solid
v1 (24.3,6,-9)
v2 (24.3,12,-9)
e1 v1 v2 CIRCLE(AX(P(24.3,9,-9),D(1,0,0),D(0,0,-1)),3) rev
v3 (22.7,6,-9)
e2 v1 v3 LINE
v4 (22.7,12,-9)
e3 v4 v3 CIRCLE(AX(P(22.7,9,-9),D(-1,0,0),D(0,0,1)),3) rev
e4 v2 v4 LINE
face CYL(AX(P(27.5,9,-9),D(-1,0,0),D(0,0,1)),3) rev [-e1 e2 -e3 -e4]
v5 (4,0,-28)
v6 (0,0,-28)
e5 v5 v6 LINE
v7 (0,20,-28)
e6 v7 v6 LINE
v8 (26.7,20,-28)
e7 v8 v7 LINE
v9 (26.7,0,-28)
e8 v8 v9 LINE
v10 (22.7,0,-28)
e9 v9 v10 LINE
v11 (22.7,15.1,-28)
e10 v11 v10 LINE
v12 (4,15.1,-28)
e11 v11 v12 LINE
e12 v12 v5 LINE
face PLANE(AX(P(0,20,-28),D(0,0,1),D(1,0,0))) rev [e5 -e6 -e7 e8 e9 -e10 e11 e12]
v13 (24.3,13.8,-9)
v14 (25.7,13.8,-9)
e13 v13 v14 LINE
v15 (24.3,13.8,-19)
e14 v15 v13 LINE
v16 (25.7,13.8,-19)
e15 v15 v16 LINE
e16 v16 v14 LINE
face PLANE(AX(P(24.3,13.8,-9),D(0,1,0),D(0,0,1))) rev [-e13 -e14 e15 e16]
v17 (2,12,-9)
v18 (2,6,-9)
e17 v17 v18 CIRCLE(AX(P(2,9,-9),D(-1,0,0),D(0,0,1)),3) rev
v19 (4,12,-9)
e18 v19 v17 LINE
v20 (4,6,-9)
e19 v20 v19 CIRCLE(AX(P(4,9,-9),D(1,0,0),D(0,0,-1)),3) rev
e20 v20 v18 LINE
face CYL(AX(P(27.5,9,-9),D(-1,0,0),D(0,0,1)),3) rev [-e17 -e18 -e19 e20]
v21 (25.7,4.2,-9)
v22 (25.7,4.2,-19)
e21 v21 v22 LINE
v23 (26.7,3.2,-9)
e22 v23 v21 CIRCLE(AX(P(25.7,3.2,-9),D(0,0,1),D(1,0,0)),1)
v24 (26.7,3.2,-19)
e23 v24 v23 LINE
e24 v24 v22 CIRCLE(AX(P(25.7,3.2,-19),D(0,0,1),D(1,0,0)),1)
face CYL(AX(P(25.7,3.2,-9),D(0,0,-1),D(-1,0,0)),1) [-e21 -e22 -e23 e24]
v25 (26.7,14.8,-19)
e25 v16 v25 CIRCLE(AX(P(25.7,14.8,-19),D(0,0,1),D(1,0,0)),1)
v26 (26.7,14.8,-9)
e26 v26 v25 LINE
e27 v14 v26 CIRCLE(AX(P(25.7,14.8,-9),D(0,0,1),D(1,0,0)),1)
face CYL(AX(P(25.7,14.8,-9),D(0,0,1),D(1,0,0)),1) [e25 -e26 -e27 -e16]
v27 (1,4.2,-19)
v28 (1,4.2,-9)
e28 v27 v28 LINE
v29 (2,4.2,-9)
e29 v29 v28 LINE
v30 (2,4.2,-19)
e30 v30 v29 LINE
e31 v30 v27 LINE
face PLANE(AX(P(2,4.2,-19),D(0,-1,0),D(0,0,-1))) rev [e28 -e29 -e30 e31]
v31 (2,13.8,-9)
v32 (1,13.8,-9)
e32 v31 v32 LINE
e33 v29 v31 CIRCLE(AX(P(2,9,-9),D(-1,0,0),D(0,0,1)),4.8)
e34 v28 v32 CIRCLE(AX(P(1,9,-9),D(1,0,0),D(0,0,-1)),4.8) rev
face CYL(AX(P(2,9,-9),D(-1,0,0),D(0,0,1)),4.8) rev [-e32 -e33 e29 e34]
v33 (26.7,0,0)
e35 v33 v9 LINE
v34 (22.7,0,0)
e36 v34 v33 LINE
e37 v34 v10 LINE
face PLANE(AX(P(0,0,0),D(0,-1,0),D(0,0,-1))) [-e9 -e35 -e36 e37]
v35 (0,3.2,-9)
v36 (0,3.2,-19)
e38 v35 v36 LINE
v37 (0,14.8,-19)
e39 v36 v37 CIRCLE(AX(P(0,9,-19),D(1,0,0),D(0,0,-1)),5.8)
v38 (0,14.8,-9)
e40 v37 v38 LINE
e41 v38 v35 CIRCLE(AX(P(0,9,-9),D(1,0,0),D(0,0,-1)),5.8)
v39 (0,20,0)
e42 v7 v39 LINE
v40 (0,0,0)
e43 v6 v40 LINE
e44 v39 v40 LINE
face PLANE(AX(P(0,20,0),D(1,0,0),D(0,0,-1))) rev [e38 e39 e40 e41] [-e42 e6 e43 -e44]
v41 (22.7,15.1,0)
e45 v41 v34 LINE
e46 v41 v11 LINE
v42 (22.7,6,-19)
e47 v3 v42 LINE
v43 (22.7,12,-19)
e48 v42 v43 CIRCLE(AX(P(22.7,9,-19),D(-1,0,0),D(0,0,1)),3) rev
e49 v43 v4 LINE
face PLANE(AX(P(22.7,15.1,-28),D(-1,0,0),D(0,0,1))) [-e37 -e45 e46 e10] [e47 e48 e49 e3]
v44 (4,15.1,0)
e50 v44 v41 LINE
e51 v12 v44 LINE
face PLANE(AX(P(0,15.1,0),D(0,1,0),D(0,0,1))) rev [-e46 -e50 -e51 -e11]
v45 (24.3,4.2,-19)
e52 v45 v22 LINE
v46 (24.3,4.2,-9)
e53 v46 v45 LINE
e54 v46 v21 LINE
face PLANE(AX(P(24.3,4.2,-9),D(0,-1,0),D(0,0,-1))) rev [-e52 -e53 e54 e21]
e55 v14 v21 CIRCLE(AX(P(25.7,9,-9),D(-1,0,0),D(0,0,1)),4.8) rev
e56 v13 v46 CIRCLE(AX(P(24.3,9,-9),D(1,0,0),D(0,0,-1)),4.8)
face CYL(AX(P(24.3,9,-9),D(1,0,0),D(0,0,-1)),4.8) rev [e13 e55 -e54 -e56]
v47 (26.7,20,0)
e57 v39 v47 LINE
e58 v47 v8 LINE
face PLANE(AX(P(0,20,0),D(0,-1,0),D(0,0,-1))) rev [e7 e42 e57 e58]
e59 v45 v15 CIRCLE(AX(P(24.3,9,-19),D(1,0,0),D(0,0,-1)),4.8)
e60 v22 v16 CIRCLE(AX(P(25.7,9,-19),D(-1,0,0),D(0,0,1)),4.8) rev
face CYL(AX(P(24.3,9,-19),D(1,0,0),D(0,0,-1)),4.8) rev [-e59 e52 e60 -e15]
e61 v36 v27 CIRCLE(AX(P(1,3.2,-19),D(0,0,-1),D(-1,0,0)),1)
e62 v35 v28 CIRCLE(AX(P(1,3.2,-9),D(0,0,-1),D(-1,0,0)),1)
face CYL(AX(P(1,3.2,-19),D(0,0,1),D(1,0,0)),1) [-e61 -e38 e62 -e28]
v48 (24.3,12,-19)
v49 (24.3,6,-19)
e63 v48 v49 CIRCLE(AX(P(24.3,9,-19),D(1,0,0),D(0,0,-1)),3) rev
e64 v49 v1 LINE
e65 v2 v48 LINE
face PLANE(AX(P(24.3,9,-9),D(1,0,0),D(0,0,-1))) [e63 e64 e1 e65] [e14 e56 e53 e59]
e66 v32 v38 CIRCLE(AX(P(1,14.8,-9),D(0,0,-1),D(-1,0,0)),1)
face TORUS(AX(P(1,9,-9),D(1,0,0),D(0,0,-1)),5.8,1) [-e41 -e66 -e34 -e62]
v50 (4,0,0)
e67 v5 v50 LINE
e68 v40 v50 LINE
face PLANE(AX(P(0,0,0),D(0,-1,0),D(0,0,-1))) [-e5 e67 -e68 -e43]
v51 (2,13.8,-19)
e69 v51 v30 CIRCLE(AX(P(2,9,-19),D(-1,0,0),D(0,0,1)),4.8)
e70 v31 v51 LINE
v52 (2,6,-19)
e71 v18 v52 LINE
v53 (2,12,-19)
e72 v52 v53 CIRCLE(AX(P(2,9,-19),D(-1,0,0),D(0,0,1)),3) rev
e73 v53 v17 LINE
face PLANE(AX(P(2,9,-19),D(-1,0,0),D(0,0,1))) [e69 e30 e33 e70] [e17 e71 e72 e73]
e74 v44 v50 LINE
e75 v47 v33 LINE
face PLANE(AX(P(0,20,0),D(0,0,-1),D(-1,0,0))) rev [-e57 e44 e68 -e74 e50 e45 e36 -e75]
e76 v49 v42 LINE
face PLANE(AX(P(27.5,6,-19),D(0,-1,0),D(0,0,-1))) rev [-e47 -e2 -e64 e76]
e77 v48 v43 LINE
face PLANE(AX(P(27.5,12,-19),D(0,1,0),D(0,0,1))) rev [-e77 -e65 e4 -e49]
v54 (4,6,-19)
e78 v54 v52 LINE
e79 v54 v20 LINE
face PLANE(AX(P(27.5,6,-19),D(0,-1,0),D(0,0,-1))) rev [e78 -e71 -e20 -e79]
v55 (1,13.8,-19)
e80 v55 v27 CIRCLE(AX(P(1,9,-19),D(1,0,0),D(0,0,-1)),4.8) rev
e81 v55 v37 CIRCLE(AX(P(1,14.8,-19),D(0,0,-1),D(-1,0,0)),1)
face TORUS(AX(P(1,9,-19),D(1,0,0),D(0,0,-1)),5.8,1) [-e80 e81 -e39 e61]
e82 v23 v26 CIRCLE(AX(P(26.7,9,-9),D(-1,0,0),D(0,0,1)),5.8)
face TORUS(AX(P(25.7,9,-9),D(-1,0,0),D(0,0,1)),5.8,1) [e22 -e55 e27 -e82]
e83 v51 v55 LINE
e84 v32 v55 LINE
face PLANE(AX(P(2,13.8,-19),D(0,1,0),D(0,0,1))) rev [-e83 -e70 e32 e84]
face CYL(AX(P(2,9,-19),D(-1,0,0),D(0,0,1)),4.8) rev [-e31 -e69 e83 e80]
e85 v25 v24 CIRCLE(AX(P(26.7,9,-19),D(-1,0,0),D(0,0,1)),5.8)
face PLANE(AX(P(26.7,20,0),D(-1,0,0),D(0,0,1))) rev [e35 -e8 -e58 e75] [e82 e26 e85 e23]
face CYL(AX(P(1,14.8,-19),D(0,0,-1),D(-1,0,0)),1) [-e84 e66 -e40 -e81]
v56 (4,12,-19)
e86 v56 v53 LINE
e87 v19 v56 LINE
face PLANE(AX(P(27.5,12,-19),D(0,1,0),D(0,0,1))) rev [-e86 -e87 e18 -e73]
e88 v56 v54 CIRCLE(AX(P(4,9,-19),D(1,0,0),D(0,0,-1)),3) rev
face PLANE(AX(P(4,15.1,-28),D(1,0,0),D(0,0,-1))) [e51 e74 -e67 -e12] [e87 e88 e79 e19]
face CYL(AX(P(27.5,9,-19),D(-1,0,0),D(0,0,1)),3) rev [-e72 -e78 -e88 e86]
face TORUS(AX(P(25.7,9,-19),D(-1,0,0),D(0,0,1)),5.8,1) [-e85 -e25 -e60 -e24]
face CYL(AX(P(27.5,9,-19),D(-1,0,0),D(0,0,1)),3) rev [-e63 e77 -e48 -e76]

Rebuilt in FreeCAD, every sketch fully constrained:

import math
import FreeCAD as App
import Part
import Sketcher
from FreeCAD import Vector


def edges_at(feature, points):
    """Names of the edges that pass closest to the given points."""
    edges = feature.Shape.Edges
    near = lambda p: min(range(len(edges)), key=lambda i: edges[i].distToShape(Part.Vertex(*p))[0])
    return sorted({f"Edge{near(p) + 1}" for p in points})

doc = App.newDocument("Part")
body = doc.addObject("PartDesign::Body", "Body")

# Sketch on XZ plane
sketch1 = body.newObject("Sketcher::SketchObject", "Sketch")
sketch1.AttachmentSupport = (doc.getObject("XZ_Plane"), [""])
sketch1.MapMode = "FlatFace"
sketch1.addGeometry(Part.LineSegment(Vector(0, -28, 0), Vector(0, 0, 0)), False)
sketch1.addGeometry(Part.LineSegment(Vector(0, 0, 0), Vector(26.7, 0, 0)), False)
sketch1.addGeometry(Part.LineSegment(Vector(26.7, 0, 0), Vector(26.7, -28, 0)), False)
sketch1.addGeometry(Part.LineSegment(Vector(26.7, -28, 0), Vector(0, -28, 0)), False)
sketch1.addConstraint(Sketcher.Constraint("Coincident", 0, 2, 1, 1))
sketch1.addConstraint(Sketcher.Constraint("Coincident", 1, 2, 2, 1))
sketch1.addConstraint(Sketcher.Constraint("Coincident", 2, 2, 3, 1))
sketch1.addConstraint(Sketcher.Constraint("Coincident", 3, 2, 0, 1))
sketch1.addConstraint(Sketcher.Constraint("Vertical", 0))
sketch1.addConstraint(Sketcher.Constraint("Horizontal", 1))
sketch1.addConstraint(Sketcher.Constraint("Vertical", 2))
sketch1.addConstraint(Sketcher.Constraint("Horizontal", 3))
sketch1.addConstraint(Sketcher.Constraint("Coincident", 0, 2, -1, 1))
sketch1.addConstraint(Sketcher.Constraint("DistanceY", 0, 1, 0, 2, 28.0))
sketch1.addConstraint(Sketcher.Constraint("DistanceX", 1, 1, 1, 2, 26.7))
pad1 = body.newObject("PartDesign::Pad", "Pad")
pad1.Profile = sketch1
pad1.Length = 20
pad1.Reversed = True

# Sketch on YZ plane
sketch2 = body.newObject("Sketcher::SketchObject", "Sketch001")
sketch2.AttachmentSupport = (doc.getObject("YZ_Plane"), [""])
sketch2.MapMode = "FlatFace"
sketch2.addGeometry(Part.LineSegment(Vector(12, -9, 0), Vector(12, -19, 0)), False)
sketch2.addGeometry(Part.ArcOfCircle(Part.Circle(Vector(9, -19, 0), Vector(0, 0, 1), 3), math.radians(180), math.radians(360)), False)
sketch2.addGeometry(Part.LineSegment(Vector(6, -19, 0), Vector(6, -9, 0)), False)
sketch2.addGeometry(Part.ArcOfCircle(Part.Circle(Vector(9, -9, 0), Vector(0, 0, 1), 3), math.radians(0), math.radians(180)), False)
sketch2.addConstraint(Sketcher.Constraint("Tangent", 0, 2, 1, 2))
sketch2.addConstraint(Sketcher.Constraint("Tangent", 1, 1, 2, 1))
sketch2.addConstraint(Sketcher.Constraint("Tangent", 2, 2, 3, 2))
sketch2.addConstraint(Sketcher.Constraint("Tangent", 3, 1, 0, 1))
sketch2.addConstraint(Sketcher.Constraint("Vertical", 0))
sketch2.addConstraint(Sketcher.Constraint("Vertical", 2))
sketch2.addConstraint(Sketcher.Constraint("Radius", 1, 3.0))
sketch2.addConstraint(Sketcher.Constraint("DistanceY", 0, 2, 0, 1, 10.0))
sketch2.addConstraint(Sketcher.Constraint("DistanceX", -1, 1, 1, 3, 9.0))
sketch2.addConstraint(Sketcher.Constraint("DistanceY", 1, 3, -1, 1, 19.0))
pocket1 = body.newObject("PartDesign::Pocket", "Pocket")
pocket1.Profile = sketch2
pocket1.Length = 27.5
pocket1.Reversed = True

# Sketch on YZ plane
sketch3 = body.newObject("Sketcher::SketchObject", "Sketch002")
sketch3.AttachmentSupport = (doc.getObject("YZ_Plane"), [""])
sketch3.MapMode = "FlatFace"
sketch3.addGeometry(Part.LineSegment(Vector(13.8, -9, 0), Vector(13.8, -19, 0)), False)
sketch3.addGeometry(Part.ArcOfCircle(Part.Circle(Vector(9, -19, 0), Vector(0, 0, 1), 4.8), math.radians(180), math.radians(360)), False)
sketch3.addGeometry(Part.LineSegment(Vector(4.2, -19, 0), Vector(4.2, -9, 0)), False)
sketch3.addGeometry(Part.ArcOfCircle(Part.Circle(Vector(9, -9, 0), Vector(0, 0, 1), 4.8), math.radians(0), math.radians(180)), False)
sketch3.addConstraint(Sketcher.Constraint("Tangent", 0, 2, 1, 2))
sketch3.addConstraint(Sketcher.Constraint("Tangent", 1, 1, 2, 1))
sketch3.addConstraint(Sketcher.Constraint("Tangent", 2, 2, 3, 2))
sketch3.addConstraint(Sketcher.Constraint("Tangent", 3, 1, 0, 1))
sketch3.addConstraint(Sketcher.Constraint("Vertical", 0))
sketch3.addConstraint(Sketcher.Constraint("Vertical", 2))
sketch3.addConstraint(Sketcher.Constraint("Radius", 1, 4.8))
sketch3.addConstraint(Sketcher.Constraint("DistanceY", 0, 2, 0, 1, 10.0))
sketch3.addConstraint(Sketcher.Constraint("DistanceX", -1, 1, 1, 3, 9.0))
sketch3.addConstraint(Sketcher.Constraint("DistanceY", 1, 3, -1, 1, 19.0))
pocket2 = body.newObject("PartDesign::Pocket", "Pocket001")
pocket2.Profile = sketch3
pocket2.Length = 2
pocket2.Reversed = True

# Sketch on YZ plane
sketch4 = body.newObject("Sketcher::SketchObject", "Sketch003")
sketch4.AttachmentSupport = (doc.getObject("YZ_Plane"), [""])
sketch4.MapMode = "FlatFace"
sketch4.AttachmentOffset = App.Placement(Vector(0, 0, 26.7), App.Rotation())
sketch4.addGeometry(Part.LineSegment(Vector(13.8, -19, 0), Vector(13.8, -9, 0)), False)
sketch4.addGeometry(Part.ArcOfCircle(Part.Circle(Vector(9, -9, 0), Vector(0, 0, 1), 4.8), math.radians(0), math.radians(180)), False)
sketch4.addGeometry(Part.LineSegment(Vector(4.2, -9, 0), Vector(4.2, -19, 0)), False)
sketch4.addGeometry(Part.ArcOfCircle(Part.Circle(Vector(9, -19, 0), Vector(0, 0, 1), 4.8), math.radians(180), math.radians(360)), False)
sketch4.addConstraint(Sketcher.Constraint("Tangent", 0, 2, 1, 1))
sketch4.addConstraint(Sketcher.Constraint("Tangent", 1, 2, 2, 1))
sketch4.addConstraint(Sketcher.Constraint("Tangent", 2, 2, 3, 1))
sketch4.addConstraint(Sketcher.Constraint("Tangent", 3, 2, 0, 1))
sketch4.addConstraint(Sketcher.Constraint("Vertical", 0))
sketch4.addConstraint(Sketcher.Constraint("Vertical", 2))
sketch4.addConstraint(Sketcher.Constraint("Radius", 1, 4.8))
sketch4.addConstraint(Sketcher.Constraint("DistanceY", 0, 1, 0, 2, 10.0))
sketch4.addConstraint(Sketcher.Constraint("DistanceX", -1, 1, 1, 3, 9.0))
sketch4.addConstraint(Sketcher.Constraint("DistanceY", 1, 3, -1, 1, 9.0))
pocket3 = body.newObject("PartDesign::Pocket", "Pocket002")
pocket3.Profile = sketch4
pocket3.Length = 2.4

# Sketch on XZ plane
sketch5 = body.newObject("Sketcher::SketchObject", "Sketch004")
sketch5.AttachmentSupport = (doc.getObject("XZ_Plane"), [""])
sketch5.MapMode = "FlatFace"
sketch5.addGeometry(Part.LineSegment(Vector(4, -28, 0), Vector(4, 0, 0)), False)
sketch5.addGeometry(Part.LineSegment(Vector(4, 0, 0), Vector(22.7, 0, 0)), False)
sketch5.addGeometry(Part.LineSegment(Vector(22.7, 0, 0), Vector(22.7, -28, 0)), False)
sketch5.addGeometry(Part.LineSegment(Vector(22.7, -28, 0), Vector(4, -28, 0)), False)
sketch5.addConstraint(Sketcher.Constraint("Coincident", 0, 2, 1, 1))
sketch5.addConstraint(Sketcher.Constraint("Coincident", 1, 2, 2, 1))
sketch5.addConstraint(Sketcher.Constraint("Coincident", 2, 2, 3, 1))
sketch5.addConstraint(Sketcher.Constraint("Coincident", 3, 2, 0, 1))
sketch5.addConstraint(Sketcher.Constraint("Vertical", 0))
sketch5.addConstraint(Sketcher.Constraint("Horizontal", 1))
sketch5.addConstraint(Sketcher.Constraint("Vertical", 2))
sketch5.addConstraint(Sketcher.Constraint("Horizontal", 3))
sketch5.addConstraint(Sketcher.Constraint("PointOnObject", 0, 2, -1))
sketch5.addConstraint(Sketcher.Constraint("DistanceY", 0, 1, 0, 2, 28.0))
sketch5.addConstraint(Sketcher.Constraint("DistanceX", 1, 1, 1, 2, 18.7))
sketch5.addConstraint(Sketcher.Constraint("DistanceX", -1, 1, 0, 2, 4.0))
pocket4 = body.newObject("PartDesign::Pocket", "Pocket003")
pocket4.Profile = sketch5
pocket4.Length = 15.1
doc.recompute()

fillet = body.newObject("PartDesign::Fillet", "Fillet")
fillet.Base = (pocket4, edges_at(pocket4, [
    (0, 9, -23.8),
    (0, 4.2, -14),
    (0, 9, -4.2),
    (0, 13.8, -14),
    (26.7, 9, -4.2),
    (26.7, 4.2, -14),
    (26.7, 9, -23.8),
    (26.7, 13.8, -14),
]))
fillet.Radius = 1

doc.recompute()
